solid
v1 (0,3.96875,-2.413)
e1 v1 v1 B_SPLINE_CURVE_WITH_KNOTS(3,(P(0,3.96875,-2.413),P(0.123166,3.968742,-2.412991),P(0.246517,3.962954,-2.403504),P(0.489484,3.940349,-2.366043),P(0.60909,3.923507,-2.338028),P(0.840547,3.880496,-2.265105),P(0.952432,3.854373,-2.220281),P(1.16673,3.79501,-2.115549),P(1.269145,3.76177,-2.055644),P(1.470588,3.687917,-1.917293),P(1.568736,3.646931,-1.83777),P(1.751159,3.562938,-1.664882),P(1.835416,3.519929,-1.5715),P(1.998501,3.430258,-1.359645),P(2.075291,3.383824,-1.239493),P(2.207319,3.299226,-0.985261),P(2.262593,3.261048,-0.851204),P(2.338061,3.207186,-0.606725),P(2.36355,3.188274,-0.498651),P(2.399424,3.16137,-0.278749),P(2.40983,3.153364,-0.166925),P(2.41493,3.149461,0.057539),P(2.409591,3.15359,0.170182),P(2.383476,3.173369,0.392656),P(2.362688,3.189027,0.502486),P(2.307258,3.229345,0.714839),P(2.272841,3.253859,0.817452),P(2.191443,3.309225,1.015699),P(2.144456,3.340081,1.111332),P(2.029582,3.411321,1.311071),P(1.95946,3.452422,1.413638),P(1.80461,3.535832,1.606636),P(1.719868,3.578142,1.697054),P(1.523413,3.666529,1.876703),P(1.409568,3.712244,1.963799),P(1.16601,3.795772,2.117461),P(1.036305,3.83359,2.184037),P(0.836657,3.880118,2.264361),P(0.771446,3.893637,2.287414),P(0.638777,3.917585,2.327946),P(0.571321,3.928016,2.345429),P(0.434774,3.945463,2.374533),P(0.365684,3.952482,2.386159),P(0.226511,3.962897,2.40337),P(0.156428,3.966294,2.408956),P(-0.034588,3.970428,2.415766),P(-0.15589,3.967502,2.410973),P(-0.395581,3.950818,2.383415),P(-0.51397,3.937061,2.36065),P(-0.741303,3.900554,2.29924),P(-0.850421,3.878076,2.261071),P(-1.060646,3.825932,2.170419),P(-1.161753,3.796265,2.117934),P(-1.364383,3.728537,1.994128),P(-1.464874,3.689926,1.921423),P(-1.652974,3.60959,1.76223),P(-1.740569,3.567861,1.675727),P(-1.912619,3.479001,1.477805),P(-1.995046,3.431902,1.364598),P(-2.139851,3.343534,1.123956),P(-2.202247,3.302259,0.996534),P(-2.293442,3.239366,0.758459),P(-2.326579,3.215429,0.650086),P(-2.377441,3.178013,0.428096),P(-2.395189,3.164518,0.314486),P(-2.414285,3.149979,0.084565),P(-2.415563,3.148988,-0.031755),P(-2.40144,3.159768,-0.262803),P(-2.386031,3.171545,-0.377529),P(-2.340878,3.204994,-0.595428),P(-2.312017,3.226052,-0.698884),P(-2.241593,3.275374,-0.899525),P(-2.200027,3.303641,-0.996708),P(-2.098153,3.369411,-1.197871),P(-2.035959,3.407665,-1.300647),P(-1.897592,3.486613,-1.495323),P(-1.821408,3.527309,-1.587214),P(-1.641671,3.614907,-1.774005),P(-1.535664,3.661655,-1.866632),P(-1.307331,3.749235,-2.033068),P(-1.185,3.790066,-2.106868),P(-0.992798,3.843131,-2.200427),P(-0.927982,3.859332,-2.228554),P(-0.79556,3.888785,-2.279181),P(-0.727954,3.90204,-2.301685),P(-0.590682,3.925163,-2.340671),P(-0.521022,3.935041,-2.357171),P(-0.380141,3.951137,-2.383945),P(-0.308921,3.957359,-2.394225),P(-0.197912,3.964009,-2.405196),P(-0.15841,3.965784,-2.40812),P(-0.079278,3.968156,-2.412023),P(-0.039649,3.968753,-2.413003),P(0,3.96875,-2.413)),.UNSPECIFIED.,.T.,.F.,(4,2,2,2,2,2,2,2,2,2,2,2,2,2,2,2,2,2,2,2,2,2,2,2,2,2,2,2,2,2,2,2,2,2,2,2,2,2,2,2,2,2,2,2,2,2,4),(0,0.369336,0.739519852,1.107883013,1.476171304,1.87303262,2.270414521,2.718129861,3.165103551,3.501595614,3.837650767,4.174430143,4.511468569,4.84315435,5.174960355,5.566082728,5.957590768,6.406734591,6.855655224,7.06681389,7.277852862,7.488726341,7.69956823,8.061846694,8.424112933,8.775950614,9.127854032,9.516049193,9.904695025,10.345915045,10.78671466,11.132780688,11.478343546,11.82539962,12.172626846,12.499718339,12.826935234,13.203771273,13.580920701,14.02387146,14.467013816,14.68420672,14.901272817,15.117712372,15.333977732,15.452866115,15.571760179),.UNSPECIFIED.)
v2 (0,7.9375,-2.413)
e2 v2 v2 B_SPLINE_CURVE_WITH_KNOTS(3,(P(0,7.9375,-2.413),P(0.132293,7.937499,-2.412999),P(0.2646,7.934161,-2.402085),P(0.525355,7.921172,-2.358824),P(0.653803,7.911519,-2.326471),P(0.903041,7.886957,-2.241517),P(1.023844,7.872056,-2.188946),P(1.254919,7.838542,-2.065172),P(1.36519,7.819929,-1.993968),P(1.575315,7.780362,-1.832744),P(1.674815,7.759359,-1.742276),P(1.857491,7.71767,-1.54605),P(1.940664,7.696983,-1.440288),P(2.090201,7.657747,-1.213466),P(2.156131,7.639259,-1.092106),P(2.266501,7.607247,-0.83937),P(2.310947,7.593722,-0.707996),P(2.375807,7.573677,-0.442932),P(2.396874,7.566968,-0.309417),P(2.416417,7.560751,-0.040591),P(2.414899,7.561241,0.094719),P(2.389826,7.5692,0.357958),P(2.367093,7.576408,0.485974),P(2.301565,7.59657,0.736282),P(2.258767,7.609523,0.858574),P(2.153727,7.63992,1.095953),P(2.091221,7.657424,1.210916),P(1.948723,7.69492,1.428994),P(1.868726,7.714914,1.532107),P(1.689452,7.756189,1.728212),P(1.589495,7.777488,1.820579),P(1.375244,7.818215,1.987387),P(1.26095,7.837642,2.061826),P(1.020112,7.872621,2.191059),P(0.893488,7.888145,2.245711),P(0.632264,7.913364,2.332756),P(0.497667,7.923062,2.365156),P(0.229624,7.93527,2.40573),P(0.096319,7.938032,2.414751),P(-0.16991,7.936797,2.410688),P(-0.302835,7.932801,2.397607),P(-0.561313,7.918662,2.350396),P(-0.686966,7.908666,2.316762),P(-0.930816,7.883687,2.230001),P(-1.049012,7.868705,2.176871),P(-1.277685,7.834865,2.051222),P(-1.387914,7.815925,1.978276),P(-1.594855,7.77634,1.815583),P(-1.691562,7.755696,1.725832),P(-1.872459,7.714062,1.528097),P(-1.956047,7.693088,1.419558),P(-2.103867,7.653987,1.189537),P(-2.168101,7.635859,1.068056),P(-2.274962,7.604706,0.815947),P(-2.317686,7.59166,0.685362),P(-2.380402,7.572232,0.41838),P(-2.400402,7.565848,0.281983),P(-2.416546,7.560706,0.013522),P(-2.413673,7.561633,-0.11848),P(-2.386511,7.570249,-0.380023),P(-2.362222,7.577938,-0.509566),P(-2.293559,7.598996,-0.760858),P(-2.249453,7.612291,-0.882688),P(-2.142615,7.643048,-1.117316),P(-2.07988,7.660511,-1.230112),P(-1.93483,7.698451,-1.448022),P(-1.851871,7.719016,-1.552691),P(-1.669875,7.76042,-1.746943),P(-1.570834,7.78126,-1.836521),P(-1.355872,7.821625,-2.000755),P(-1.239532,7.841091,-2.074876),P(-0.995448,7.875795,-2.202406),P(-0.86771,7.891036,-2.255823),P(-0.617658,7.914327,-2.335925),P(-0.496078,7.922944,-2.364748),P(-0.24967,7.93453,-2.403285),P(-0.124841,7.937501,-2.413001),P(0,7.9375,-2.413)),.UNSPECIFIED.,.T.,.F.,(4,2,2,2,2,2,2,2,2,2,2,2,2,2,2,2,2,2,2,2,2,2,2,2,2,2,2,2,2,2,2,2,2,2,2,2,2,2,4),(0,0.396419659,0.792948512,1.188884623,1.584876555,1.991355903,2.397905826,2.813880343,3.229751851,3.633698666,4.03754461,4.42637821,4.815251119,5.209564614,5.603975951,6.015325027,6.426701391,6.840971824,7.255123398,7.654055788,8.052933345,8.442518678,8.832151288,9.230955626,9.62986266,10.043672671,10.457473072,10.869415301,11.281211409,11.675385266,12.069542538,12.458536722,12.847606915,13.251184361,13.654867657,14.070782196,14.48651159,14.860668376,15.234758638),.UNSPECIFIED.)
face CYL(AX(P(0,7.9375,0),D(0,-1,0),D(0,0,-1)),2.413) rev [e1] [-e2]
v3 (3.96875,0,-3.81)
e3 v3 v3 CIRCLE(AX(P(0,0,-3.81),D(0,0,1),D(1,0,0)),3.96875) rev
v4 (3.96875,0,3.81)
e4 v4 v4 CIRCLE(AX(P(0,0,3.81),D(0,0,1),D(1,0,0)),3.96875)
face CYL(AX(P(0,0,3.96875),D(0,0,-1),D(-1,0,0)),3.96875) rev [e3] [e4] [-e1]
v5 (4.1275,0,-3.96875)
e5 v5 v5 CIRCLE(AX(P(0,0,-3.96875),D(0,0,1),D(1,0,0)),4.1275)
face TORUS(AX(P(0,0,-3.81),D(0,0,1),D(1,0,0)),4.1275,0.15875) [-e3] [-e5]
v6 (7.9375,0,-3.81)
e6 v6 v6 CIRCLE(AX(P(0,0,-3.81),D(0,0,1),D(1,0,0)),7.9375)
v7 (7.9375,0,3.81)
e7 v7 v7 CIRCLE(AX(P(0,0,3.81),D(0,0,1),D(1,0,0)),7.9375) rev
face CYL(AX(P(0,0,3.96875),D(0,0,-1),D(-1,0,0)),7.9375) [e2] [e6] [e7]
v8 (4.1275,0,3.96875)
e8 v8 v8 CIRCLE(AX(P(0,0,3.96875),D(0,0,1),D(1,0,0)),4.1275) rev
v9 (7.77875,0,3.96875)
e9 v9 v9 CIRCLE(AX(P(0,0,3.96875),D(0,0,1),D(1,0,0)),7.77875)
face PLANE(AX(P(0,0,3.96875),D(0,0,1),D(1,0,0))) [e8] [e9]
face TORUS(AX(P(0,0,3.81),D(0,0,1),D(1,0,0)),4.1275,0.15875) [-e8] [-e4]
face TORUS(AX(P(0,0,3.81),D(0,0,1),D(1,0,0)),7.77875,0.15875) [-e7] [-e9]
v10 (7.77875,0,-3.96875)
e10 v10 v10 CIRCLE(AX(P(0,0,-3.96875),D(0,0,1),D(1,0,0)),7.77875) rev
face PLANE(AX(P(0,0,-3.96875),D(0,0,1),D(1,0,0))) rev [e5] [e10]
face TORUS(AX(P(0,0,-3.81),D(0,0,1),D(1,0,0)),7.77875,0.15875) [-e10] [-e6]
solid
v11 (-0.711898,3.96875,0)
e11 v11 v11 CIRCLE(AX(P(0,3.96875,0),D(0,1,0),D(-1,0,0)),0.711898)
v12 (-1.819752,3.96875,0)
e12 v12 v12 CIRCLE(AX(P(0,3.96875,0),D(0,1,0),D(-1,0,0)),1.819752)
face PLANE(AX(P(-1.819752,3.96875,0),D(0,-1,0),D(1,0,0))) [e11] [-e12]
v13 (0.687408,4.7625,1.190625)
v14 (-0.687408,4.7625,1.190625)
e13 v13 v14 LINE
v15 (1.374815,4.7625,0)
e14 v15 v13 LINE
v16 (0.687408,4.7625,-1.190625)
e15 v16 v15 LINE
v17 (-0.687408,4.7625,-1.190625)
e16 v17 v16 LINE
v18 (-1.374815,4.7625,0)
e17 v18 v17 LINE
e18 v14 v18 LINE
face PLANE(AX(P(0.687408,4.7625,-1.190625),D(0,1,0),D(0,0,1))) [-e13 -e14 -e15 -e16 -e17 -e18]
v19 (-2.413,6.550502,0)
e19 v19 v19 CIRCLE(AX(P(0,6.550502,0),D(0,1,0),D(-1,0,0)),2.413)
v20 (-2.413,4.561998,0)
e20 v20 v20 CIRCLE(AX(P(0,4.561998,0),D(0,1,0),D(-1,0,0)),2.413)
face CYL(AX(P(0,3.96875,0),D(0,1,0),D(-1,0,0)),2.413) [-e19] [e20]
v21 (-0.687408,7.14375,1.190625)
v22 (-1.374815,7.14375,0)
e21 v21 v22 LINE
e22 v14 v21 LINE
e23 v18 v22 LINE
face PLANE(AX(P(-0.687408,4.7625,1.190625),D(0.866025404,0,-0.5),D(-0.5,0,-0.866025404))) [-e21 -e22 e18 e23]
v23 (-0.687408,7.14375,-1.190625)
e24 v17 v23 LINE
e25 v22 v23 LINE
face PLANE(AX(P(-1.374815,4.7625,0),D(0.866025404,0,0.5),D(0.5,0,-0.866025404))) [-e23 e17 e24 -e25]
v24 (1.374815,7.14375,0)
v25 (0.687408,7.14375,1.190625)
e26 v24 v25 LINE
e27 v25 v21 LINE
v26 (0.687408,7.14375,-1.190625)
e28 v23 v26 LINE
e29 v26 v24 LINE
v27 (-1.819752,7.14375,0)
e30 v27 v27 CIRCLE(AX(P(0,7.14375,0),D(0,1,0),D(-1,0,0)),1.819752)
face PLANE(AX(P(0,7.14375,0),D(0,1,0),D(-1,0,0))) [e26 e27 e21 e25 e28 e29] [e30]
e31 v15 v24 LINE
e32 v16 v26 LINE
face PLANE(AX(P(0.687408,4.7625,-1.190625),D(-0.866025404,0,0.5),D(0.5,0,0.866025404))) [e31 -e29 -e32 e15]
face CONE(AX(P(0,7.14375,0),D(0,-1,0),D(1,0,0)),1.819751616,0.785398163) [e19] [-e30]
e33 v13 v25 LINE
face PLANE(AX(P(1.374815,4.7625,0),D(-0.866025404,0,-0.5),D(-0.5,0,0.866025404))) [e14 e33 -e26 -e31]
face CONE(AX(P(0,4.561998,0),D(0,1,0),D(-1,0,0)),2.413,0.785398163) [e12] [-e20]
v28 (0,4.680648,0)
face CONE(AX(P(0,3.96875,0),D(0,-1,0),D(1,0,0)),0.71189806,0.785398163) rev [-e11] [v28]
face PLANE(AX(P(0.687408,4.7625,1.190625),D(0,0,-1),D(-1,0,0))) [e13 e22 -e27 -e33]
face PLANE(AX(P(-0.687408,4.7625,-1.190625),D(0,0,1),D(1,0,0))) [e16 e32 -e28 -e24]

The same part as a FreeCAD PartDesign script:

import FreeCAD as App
import Part
import Sketcher

V = App.Vector
Q = App.Units.Quantity


def edges_at(feature, points):
    """Names of the edges that pass closest to the given points."""
    edges = feature.Shape.Edges
    near = lambda p: min(range(len(edges)), key=lambda i: edges[i].distToShape(Part.Vertex(*p))[0])
    return sorted({f"Edge{near(p) + 1}" for p in points})


def add_polygon(sketch, points):
    """Adds a closed chain of lines whose ends are joined by coincident constraints."""
    first, n = sketch.GeometryCount, len(points)
    for a, b in zip(points, points[1:] + points[:1]):
        sketch.addGeometry(Part.LineSegment(App.Vector(*a, 0), App.Vector(*b, 0)), False)
    for i in range(n):
        sketch.addConstraint(Sketcher.Constraint("Coincident", first + i, 2, first + (i + 1) % n, 1))

doc = App.newDocument("Part")
body = doc.addObject("PartDesign::Body", "Body")

# Sketch on XY plane
sketch1 = doc.addObject("Sketcher::SketchObject", "Sketch")
body.addObject(sketch1)
sketch1.AttachmentSupport = (doc.XY_Plane, [""])
sketch1.MapMode = "FlatFace"
sketch1.addGeometry([
    Part.Circle(V(0, 0, 0), V(0, 0, 1), 7.9375),
    Part.Circle(V(0, 0, 0), V(0, 0, 1), 3.96875),
], False)
sketch1.addConstraint([
    Sketcher.Constraint("Coincident", 0, 3, -1, 1),
    Sketcher.Constraint("Coincident", 1, 3, -1, 1),
    Sketcher.Constraint("Diameter", 0, Q("0.625 in")),
    Sketcher.Constraint("Diameter", 1, Q("0.3125 in")),
])
pad1 = doc.addObject("PartDesign::Pad", "Pad")
body.addObject(pad1)
pad1.Profile = sketch1
pad1.Length = Q("0.3125 in")
pad1.Midplane = True

# Sketch on XZ plane
sketch2 = doc.addObject("Sketcher::SketchObject", "Sketch001")
body.addObject(sketch2)
sketch2.AttachmentSupport = (doc.XZ_Plane, [""])
sketch2.MapMode = "FlatFace"
sketch2.addGeometry(Part.Circle(V(0, 0, 0), V(0, 0, 1), 2.413), False)
sketch2.addConstraint([
    Sketcher.Constraint("Coincident", 0, 3, -1, 1),
    Sketcher.Constraint("Diameter", 0, Q("0.19 in")),
])
pocket1 = doc.addObject("PartDesign::Pocket", "Pocket")
body.addObject(pocket1)
pocket1.Profile = sketch2
pocket1.Type = "ThroughAll"
doc.recompute()

fillet = doc.addObject("PartDesign::Fillet", "Fillet")
body.addObject(fillet)
fillet.Base = (pocket1, edges_at(pocket1, [
    (-7.938, 0, -3.969),
    (-7.938, 0, 3.969),
    (-3.969, 0, -3.969),
    (-3.969, 0, 3.969),
]))
fillet.Radius = 0.15875
body2 = doc.addObject("PartDesign::Body", "Body001")

# Sketch on XY plane
sketch3 = doc.addObject("Sketcher::SketchObject", "Sketch002")
body2.addObject(sketch3)
sketch3.AttachmentSupport = (doc.getObject("XY_Plane001"), [""])
sketch3.MapMode = "FlatFace"
add_polygon(sketch3, [(-1.819752, 3.96875), (-0.711898, 3.96875), (0, 4.680648), (0, 7.14375), (-1.819752, 7.14375), (-2.413, 6.550502), (-2.413, 4.561998)])  # lines 0-6
sketch3.addConstraint([
    Sketcher.Constraint("Horizontal", 0),
    Sketcher.Constraint("Vertical", 2),
    Sketcher.Constraint("Horizontal", 3),
    Sketcher.Constraint("Vertical", 5),
    Sketcher.Constraint("PointOnObject", 1, 2, -2),
    Sketcher.Constraint("Parallel", 1, 4),
    Sketcher.Constraint("Perpendicular", 4, 6),
    Sketcher.Constraint("Vertical", 3, 2, 6, 2),
    Sketcher.Constraint("Equal", 4, 6),
    Sketcher.Constraint("DistanceY", -1, 1, 0, 2, Q("0.15625 in")),
    Sketcher.Constraint("DistanceY", -1, 1, 2, 2, Q("0.28125 in")),
    Sketcher.Constraint("DistanceX", 4, 2, -1, 1, Q("0.095 in")),
    Sketcher.Constraint("DistanceY", 2, 1, 2, 2, Q("2.463102 mm")),
    Sketcher.Constraint("DistanceX", 3, 2, 3, 1, Q("1.819752 mm")),
])
revolution = doc.addObject("PartDesign::Revolution", "Revolution")
body2.addObject(revolution)
revolution.Profile = sketch3
revolution.ReferenceAxis = (sketch3, ["V_Axis"])
revolution.Angle = 360

# Sketch on XZ plane
sketch4 = doc.addObject("Sketcher::SketchObject", "Sketch003")
body2.addObject(sketch4)
sketch4.AttachmentSupport = (doc.getObject("XZ_Plane001"), [""])
sketch4.MapMode = "FlatFace"
sketch4.AttachmentOffset = App.Placement(V(0, 0, -0.28125 * 25.4), App.Rotation())
add_polygon(sketch4, [(1.374815, 0), (0.687408, 1.190625), (-0.687408, 1.190625), (-1.374815, 0), (-0.687408, -1.190625), (0.687408, -1.190625)])  # lines 0-5
sketch4.addConstraint([
    Sketcher.Constraint("Horizontal", 1),
    Sketcher.Constraint("Horizontal", 4),
    Sketcher.Constraint("Symmetric", 0, 2, 3, 2, -1, 1),
    Sketcher.Constraint("Symmetric", 2, 2, 5, 2, -1, 1),
    Sketcher.Constraint("PointOnObject", 2, 2, -1),
    Sketcher.Constraint("Parallel", 2, 5),
    Sketcher.Constraint("Vertical", 1, 2, 3, 2),
    Sketcher.Constraint("Angle", 0, Q("120 deg")),
    Sketcher.Constraint("DistanceY", -1, 1, 0, 2, Q("0.046875 in")),
    Sketcher.Constraint("DistanceX", 1, 2, 1, 1, Q("1.374815 mm")),
])
pocket2 = doc.addObject("PartDesign::Pocket", "Pocket001")
body2.addObject(pocket2)
pocket2.Profile = sketch4
pocket2.Length = Q("0.09375 in")
pocket2.Reversed = True

doc.recompute()
